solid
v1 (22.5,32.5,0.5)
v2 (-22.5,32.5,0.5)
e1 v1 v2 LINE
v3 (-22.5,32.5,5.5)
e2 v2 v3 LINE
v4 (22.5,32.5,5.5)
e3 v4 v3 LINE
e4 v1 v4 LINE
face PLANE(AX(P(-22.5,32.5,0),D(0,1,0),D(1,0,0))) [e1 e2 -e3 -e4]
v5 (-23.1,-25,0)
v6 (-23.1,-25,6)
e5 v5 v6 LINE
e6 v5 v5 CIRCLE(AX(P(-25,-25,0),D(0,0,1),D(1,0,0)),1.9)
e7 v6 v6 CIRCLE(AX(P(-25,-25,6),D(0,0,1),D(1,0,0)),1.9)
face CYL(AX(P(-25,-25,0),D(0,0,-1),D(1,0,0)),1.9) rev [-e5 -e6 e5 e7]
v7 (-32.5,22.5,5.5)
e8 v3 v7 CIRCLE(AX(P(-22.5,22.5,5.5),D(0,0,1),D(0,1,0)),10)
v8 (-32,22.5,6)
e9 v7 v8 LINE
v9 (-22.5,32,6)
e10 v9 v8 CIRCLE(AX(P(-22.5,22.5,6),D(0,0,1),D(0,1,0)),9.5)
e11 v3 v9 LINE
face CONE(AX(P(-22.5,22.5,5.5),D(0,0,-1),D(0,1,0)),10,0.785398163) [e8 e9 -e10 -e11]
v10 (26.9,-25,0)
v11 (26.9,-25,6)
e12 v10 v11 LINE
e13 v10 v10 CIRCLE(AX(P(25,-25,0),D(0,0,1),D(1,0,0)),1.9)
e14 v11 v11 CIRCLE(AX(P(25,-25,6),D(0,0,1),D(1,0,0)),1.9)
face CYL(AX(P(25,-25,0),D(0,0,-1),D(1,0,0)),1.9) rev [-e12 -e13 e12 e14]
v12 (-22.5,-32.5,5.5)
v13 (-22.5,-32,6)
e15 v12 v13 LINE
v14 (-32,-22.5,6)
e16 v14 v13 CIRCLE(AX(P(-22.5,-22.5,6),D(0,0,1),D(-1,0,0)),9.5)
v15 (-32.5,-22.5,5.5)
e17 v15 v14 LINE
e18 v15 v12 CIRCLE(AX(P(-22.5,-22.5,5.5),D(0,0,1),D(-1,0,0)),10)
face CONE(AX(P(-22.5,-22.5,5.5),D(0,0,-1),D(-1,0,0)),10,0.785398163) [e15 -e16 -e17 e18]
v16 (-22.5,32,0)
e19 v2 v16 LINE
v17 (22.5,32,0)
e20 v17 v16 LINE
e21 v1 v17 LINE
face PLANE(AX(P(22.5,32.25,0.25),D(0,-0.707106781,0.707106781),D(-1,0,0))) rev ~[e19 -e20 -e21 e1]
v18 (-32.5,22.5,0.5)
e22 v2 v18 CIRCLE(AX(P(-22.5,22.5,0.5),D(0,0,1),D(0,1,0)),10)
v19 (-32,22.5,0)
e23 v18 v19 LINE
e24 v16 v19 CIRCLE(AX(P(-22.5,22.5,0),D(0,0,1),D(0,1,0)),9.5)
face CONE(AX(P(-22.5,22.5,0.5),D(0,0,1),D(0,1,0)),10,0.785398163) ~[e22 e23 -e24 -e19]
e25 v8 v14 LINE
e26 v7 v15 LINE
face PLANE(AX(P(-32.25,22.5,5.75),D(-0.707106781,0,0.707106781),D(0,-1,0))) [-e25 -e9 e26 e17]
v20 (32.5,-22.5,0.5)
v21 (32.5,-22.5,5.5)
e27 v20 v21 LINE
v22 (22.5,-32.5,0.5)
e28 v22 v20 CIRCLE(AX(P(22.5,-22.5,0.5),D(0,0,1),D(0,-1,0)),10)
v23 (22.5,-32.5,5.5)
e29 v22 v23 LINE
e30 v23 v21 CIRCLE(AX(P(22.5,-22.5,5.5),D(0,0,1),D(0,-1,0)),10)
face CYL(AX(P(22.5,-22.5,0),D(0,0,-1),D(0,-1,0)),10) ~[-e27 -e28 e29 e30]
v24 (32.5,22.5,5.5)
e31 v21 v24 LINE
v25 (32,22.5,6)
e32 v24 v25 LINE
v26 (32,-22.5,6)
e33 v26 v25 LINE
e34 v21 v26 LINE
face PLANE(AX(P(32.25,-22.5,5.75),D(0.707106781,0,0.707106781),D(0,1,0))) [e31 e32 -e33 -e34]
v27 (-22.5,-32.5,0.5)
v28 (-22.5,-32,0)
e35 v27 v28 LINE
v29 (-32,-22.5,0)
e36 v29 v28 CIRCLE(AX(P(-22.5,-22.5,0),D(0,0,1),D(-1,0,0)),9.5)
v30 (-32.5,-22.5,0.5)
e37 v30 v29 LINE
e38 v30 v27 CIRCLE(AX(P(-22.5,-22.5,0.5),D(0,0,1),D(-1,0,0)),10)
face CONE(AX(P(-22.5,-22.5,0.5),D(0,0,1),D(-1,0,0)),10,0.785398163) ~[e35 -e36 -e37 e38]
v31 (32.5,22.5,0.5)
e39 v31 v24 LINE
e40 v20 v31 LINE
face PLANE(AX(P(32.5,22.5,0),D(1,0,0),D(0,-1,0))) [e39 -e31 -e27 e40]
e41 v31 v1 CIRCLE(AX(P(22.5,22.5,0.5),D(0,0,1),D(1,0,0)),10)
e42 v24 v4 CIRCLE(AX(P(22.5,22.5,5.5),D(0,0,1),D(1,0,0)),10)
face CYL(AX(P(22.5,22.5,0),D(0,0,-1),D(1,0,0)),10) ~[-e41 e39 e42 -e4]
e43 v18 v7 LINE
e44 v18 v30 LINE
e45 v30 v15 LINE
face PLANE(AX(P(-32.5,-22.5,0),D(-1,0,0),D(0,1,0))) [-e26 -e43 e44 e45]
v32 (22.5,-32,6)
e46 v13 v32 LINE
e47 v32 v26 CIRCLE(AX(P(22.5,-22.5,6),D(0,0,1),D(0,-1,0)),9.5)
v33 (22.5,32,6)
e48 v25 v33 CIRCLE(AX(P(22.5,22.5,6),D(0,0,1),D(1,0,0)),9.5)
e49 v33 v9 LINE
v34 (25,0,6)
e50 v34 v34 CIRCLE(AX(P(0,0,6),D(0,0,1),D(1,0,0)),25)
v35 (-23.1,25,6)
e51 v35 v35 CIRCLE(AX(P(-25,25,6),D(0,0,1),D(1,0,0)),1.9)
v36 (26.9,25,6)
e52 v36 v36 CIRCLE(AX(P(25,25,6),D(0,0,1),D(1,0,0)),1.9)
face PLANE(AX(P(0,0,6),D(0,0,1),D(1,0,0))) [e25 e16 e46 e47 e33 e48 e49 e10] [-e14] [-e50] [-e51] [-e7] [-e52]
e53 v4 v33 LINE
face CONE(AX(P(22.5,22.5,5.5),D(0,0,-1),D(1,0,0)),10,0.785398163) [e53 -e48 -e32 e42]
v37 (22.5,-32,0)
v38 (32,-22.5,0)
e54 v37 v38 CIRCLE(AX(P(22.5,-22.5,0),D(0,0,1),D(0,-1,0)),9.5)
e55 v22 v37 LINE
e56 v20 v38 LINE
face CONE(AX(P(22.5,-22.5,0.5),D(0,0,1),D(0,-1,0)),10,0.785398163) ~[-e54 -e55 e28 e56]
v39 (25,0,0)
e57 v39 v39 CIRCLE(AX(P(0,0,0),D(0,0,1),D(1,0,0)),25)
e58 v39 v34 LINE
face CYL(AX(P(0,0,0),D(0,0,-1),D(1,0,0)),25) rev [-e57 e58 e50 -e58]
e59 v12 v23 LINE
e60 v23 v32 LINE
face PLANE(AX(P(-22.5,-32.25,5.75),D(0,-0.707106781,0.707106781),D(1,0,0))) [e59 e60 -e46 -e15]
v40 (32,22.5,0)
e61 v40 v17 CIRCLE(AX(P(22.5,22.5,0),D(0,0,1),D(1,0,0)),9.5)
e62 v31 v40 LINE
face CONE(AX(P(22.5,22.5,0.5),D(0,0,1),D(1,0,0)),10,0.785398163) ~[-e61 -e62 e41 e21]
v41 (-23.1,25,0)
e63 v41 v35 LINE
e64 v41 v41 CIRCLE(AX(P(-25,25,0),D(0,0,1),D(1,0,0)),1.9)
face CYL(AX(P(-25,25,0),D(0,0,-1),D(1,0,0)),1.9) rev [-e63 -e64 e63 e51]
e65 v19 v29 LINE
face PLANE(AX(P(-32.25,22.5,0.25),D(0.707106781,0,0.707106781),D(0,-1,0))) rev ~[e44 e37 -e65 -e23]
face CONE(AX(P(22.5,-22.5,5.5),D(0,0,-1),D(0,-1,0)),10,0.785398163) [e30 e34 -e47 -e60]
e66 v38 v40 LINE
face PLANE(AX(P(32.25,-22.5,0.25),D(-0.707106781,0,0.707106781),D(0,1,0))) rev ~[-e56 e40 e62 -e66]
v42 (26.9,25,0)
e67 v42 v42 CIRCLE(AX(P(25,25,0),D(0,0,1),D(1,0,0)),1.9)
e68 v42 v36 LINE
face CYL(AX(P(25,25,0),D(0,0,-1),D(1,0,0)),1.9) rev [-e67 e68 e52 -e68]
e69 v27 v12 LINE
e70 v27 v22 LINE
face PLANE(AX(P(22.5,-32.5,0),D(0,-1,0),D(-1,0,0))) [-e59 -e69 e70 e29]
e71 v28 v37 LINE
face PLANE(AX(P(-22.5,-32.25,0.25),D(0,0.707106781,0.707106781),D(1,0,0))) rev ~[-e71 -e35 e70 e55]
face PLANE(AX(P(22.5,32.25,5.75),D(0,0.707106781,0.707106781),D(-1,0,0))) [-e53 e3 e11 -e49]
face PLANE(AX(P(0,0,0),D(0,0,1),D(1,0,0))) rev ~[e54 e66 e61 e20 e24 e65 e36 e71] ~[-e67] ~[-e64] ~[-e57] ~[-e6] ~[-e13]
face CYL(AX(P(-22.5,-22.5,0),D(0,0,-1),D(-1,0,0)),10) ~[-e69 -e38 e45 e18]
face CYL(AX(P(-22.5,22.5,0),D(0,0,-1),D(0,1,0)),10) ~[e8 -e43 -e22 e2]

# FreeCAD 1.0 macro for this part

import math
import FreeCAD as App
import Part
import Sketcher

V = App.Vector


def edges_at(feature, points):
    """Names of the edges that pass closest to the given points."""
    edges = feature.Shape.Edges
    near = lambda p: min(range(len(edges)), key=lambda i: edges[i].distToShape(Part.Vertex(*p))[0])
    return sorted({f"Edge{near(p) + 1}" for p in points})

doc = App.newDocument("Part")
params = doc.addObject("Spreadsheet::Sheet", "Params")
for row, (alias, value) in enumerate([
    ("sketch1_diameter", "50 mm"),
    ("sketch1_radius", "10 mm"),
    ("sketch1_diameter2", "3.8 mm"),
    ("sketch1_width", "45 mm"),
    ("pad1_length", "6 mm"),
    ("chamfer_size", "0.5 mm"),
], start=1):
    params.set(f"A{row}", alias)
    params.set(f"B{row}", "=" + value)
    params.setAlias(f"B{row}", alias)

body = doc.addObject("PartDesign::Body", "Body")

sketch1 = body.newObject("Sketcher::SketchObject", "Sketch")
sketch1.AttachmentSupport = (doc.getObject("XY_Plane"), [""])
sketch1.MapMode = "FlatFace"
sketch1.addGeometry([
    Part.LineSegment(V(22.5, 32.5, 0), V(-22.5, 32.5, 0)),
    Part.ArcOfCircle(Part.Circle(V(-22.5, 22.5, 0), V(0, 0, 1), 10), math.radians(90), math.radians(180)),
    Part.LineSegment(V(-32.5, 22.5, 0), V(-32.5, -22.5, 0)),
    Part.ArcOfCircle(Part.Circle(V(-22.5, -22.5, 0), V(0, 0, 1), 10), math.radians(180), math.radians(270)),
    Part.LineSegment(V(-22.5, -32.5, 0), V(22.5, -32.5, 0)),
    Part.ArcOfCircle(Part.Circle(V(22.5, -22.5, 0), V(0, 0, 1), 10), math.radians(-90), math.radians(0)),
    Part.LineSegment(V(32.5, -22.5, 0), V(32.5, 22.5, 0)),
    Part.ArcOfCircle(Part.Circle(V(22.5, 22.5, 0), V(0, 0, 1), 10), math.radians(0), math.radians(90)),
    Part.Circle(V(-25, -25, 0), V(0, 0, 1), 1.9),
    Part.Circle(V(25, -25, 0), V(0, 0, 1), 1.9),
    Part.Circle(V(-25, 25, 0), V(0, 0, 1), 1.9),
    Part.Circle(V(0, 0, 0), V(0, 0, 1), 25),
    Part.Circle(V(25, 25, 0), V(0, 0, 1), 1.9),
], False)
sketch1.addConstraint([
    Sketcher.Constraint("Tangent", 0, 2, 1, 1),
    Sketcher.Constraint("Tangent", 1, 2, 2, 1),
    Sketcher.Constraint("Tangent", 2, 2, 3, 1),
    Sketcher.Constraint("Tangent", 3, 2, 4, 1),
    Sketcher.Constraint("Tangent", 4, 2, 5, 1),
    Sketcher.Constraint("Tangent", 5, 2, 6, 1),
    Sketcher.Constraint("Tangent", 6, 2, 7, 1),
    Sketcher.Constraint("Tangent", 7, 2, 0, 1),
    Sketcher.Constraint("Horizontal", 0),
    Sketcher.Constraint("Vertical", 2),
    Sketcher.Constraint("Horizontal", 4),
    Sketcher.Constraint("Vertical", 6),
    Sketcher.Constraint("Coincident", 11, 3, -1, 1),
    Sketcher.Constraint("Equal", 1, 3),
    Sketcher.Constraint("Equal", 3, 5),
    Sketcher.Constraint("Equal", 5, 7),
    Sketcher.Constraint("Equal", 8, 9),
    Sketcher.Constraint("Equal", 9, 10),
    Sketcher.Constraint("Equal", 10, 12),
    Sketcher.Constraint("Symmetric", 1, 3, 5, 3, -1, 1),
    Sketcher.Constraint("Symmetric", 9, 3, 10, 3, -1, 1),
    Sketcher.Constraint("Symmetric", 8, 3, 12, 3, -1, 1),
    Sketcher.Constraint("Symmetric", 8, 3, 9, 3, -2),
    Sketcher.Constraint("Equal", 4, 2),
    Sketcher.Constraint("Diameter", 11, 50.0),
    Sketcher.Constraint("Radius", 1, 10.0),
    Sketcher.Constraint("Diameter", 8, 3.8),
    Sketcher.Constraint("DistanceX", 8, 3, -1, 1, 25.0),
    Sketcher.Constraint("DistanceY", 8, 3, -1, 1, 25.0),
    Sketcher.Constraint("DistanceX", 0, 2, 0, 1, 45.0),
])
sketch1.setExpression("Constraints[24]", "Params.sketch1_diameter")
sketch1.setExpression("Constraints[25]", "Params.sketch1_radius")
sketch1.setExpression("Constraints[26]", "Params.sketch1_diameter2")
sketch1.setExpression("Constraints[29]", "Params.sketch1_width")
pad1 = body.newObject("PartDesign::Pad", "Pad")
pad1.Profile = sketch1
pad1.setExpression("Length", "Params.pad1_length")
doc.recompute()

chamfer = body.newObject("PartDesign::Chamfer", "Chamfer")
chamfer.Base = (pad1, edges_at(pad1, [
    (29.571, 29.571, 0),
    (0, 32.5, 0),
    (-29.571, 29.571, 0),
    (-32.5, 0, 0),
    (-29.571, -29.571, 0),
    (0, -32.5, 0),
    (29.571, -29.571, 0),
    (32.5, 0, 0),
    (29.571, 29.571, 6),
    (0, 32.5, 6),
    (-29.571, 29.571, 6),
    (-32.5, 0, 6),
    (-29.571, -29.571, 6),
    (0, -32.5, 6),
    (29.571, -29.571, 6),
    (32.5, 0, 6),
]))
chamfer.setExpression("Size", "Params.chamfer_size")

doc.recompute()
